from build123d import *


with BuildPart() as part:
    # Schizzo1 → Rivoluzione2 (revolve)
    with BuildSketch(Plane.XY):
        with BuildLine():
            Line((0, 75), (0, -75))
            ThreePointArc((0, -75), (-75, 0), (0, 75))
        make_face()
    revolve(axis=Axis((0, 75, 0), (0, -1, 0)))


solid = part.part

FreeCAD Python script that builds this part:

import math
import FreeCAD as App
import Part
import Sketcher
Q = App.Units.Quantity

doc = App.newDocument("Part")
params = doc.addObject("Spreadsheet::Sheet", "Params")
for row, (alias, value) in enumerate([
    ("sketch1_radius", "75 mm"),
    ("revolution_angle", "360 deg"),
], start=1):
    params.set(f"A{row}", alias)
    params.set(f"B{row}", "=" + value)
    params.setAlias(f"B{row}", alias)

body = doc.addObject("PartDesign::Body", "Body")

# Sketch on XY plane
sketch1 = body.newObject("Sketcher::SketchObject", "Sketch")
sketch1.AttachmentSupport = (doc.getObject("XY_Plane"), [""])
sketch1.MapMode = "FlatFace"
sketch1.addGeometry(Part.LineSegment(App.Vector(0, -75, 0), App.Vector(0, 75, 0)), False)
sketch1.addGeometry(Part.ArcOfCircle(Part.Circle(App.Vector(0, 0, 0), App.Vector(0, 0, 1), 75), math.radians(90), math.radians(270)), False)
sketch1.addConstraint(Sketcher.Constraint("Coincident", 0, 1, 1, 2))
sketch1.addConstraint(Sketcher.Constraint("Coincident", 1, 1, 0, 2))
sketch1.addConstraint(Sketcher.Constraint("Vertical", 0))
sketch1.addConstraint(Sketcher.Constraint("Coincident", 1, 3, -1, 1))
sketch1.addConstraint(Sketcher.Constraint("PointOnObject", 0, 1, -2))
sketch1.addConstraint(Sketcher.Constraint("Radius", 1, Q("75 mm")))
sketch1.setExpression("Constraints[5]", "Params.sketch1_radius")
revolution = body.newObject("PartDesign::Revolution", "Revolution")
revolution.Profile = sketch1
revolution.ReferenceAxis = (sketch1, ["V_Axis"])
revolution.setExpression("Angle", "Params.revolution_angle")

doc.recompute()
